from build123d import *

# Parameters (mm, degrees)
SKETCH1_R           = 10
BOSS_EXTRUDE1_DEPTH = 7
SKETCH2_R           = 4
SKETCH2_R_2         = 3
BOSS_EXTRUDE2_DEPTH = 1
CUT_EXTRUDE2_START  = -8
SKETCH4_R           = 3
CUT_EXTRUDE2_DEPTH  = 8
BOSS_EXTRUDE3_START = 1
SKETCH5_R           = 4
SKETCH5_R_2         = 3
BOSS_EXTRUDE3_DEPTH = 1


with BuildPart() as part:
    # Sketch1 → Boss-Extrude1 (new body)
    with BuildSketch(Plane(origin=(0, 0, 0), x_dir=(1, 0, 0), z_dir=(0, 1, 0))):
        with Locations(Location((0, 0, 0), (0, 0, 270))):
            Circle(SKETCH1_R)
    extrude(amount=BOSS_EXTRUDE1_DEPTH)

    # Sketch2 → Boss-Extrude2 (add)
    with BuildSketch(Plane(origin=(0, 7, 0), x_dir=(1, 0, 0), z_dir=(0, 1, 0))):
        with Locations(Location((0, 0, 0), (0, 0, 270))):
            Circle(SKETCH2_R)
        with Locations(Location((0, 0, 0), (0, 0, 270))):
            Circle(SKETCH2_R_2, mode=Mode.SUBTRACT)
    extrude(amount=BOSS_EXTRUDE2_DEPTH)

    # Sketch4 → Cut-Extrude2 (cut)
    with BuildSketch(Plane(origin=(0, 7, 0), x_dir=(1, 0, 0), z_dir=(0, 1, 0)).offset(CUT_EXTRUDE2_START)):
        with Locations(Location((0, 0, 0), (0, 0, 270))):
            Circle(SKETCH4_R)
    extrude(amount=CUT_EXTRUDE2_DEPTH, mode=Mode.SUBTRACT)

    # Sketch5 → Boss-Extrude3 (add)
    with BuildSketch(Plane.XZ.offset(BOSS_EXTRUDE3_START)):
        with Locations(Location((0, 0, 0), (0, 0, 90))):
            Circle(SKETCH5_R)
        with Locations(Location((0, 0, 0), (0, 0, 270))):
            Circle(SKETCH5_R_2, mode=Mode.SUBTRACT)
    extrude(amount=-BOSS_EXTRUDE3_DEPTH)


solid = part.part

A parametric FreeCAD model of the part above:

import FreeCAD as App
import Part
import Sketcher
Q = App.Units.Quantity

doc = App.newDocument("Part")
params = doc.addObject("Spreadsheet::Sheet", "Params")
for row, (alias, value) in enumerate([
    ("sketch1_diameter", "20 mm"),
    ("pad1_length", "7 mm"),
    ("sketch2_diameter", "8 mm"),
    ("sketch2_diameter2", "6 mm"),
    ("pad2_length", "1 mm"),
    ("sketch3_diameter", "6 mm"),
    ("pocket1_length", "8 mm"),
    ("sketch4_diameter", "8 mm"),
    ("sketch4_diameter2", "6 mm"),
    ("pad3_length", "1 mm"),
], start=1):
    params.set(f"A{row}", alias)
    params.set(f"B{row}", "=" + value)
    params.setAlias(f"B{row}", alias)

body = doc.addObject("PartDesign::Body", "Body")

sketch1 = doc.addObject("Sketcher::SketchObject", "Sketch")
body.addObject(sketch1)
sketch1.AttachmentSupport = (doc.XZ_Plane, [""])
sketch1.MapMode = "FlatFace"
sketch1.addGeometry(Part.Circle(App.Vector(0, 0, 0), App.Vector(0, 0, 1), 10), False)
sketch1.addConstraint([
    Sketcher.Constraint("Coincident", 0, 3, -1, 1),
    Sketcher.Constraint("Diameter", 0, Q("20 mm")),
])
sketch1.setExpression("Constraints[1]", "Params.sketch1_diameter")
pad1 = doc.addObject("PartDesign::Pad", "Pad")
body.addObject(pad1)
pad1.Profile = sketch1
pad1.setExpression("Length", "Params.pad1_length")
pad1.Reversed = True

sketch2 = doc.addObject("Sketcher::SketchObject", "Sketch001")
body.addObject(sketch2)
sketch2.AttachmentSupport = (doc.XZ_Plane, [""])
sketch2.MapMode = "FlatFace"
sketch2.AttachmentOffset = App.Placement(App.Vector(0, 0, -7), App.Rotation())
sketch2.addGeometry([
    Part.Circle(App.Vector(0, 0, 0), App.Vector(0, 0, 1), 4),
    Part.Circle(App.Vector(0, 0, 0), App.Vector(0, 0, 1), 3),
], False)
sketch2.addConstraint([
    Sketcher.Constraint("Coincident", 0, 3, -1, 1),
    Sketcher.Constraint("Coincident", 1, 3, -1, 1),
    Sketcher.Constraint("Diameter", 0, Q("8 mm")),
    Sketcher.Constraint("Diameter", 1, Q("6 mm")),
])
sketch2.setExpression("Constraints[2]", "Params.sketch2_diameter")
sketch2.setExpression("Constraints[3]", "Params.sketch2_diameter2")
pad2 = doc.addObject("PartDesign::Pad", "Pad001")
body.addObject(pad2)
pad2.Profile = sketch2
pad2.setExpression("Length", "Params.pad2_length")
pad2.Reversed = True

sketch3 = doc.addObject("Sketcher::SketchObject", "Sketch002")
body.addObject(sketch3)
sketch3.AttachmentSupport = (doc.XZ_Plane, [""])
sketch3.MapMode = "FlatFace"
sketch3.AttachmentOffset = App.Placement(App.Vector(0, 0, 1), App.Rotation())
sketch3.addGeometry(Part.Circle(App.Vector(0, 0, 0), App.Vector(0, 0, 1), 3), False)
sketch3.addConstraint([
    Sketcher.Constraint("Coincident", 0, 3, -1, 1),
    Sketcher.Constraint("Diameter", 0, Q("6 mm")),
])
sketch3.setExpression("Constraints[1]", "Params.sketch3_diameter")
pocket1 = doc.addObject("PartDesign::Pocket", "Pocket")
body.addObject(pocket1)
pocket1.Profile = sketch3
pocket1.setExpression("Length", "Params.pocket1_length")

sketch4 = doc.addObject("Sketcher::SketchObject", "Sketch003")
body.addObject(sketch4)
sketch4.AttachmentSupport = (doc.XZ_Plane, [""])
sketch4.MapMode = "FlatFace"
sketch4.AttachmentOffset = App.Placement(App.Vector(0, 0, 1), App.Rotation())
sketch4.addGeometry([
    Part.Circle(App.Vector(0, 0, 0), App.Vector(0, 0, 1), 4),
    Part.Circle(App.Vector(0, 0, 0), App.Vector(0, 0, 1), 3),
], False)
sketch4.addConstraint([
    Sketcher.Constraint("Coincident", 0, 3, -1, 1),
    Sketcher.Constraint("Coincident", 1, 3, -1, 1),
    Sketcher.Constraint("Diameter", 0, Q("8 mm")),
    Sketcher.Constraint("Diameter", 1, Q("6 mm")),
])
sketch4.setExpression("Constraints[2]", "Params.sketch4_diameter")
sketch4.setExpression("Constraints[3]", "Params.sketch4_diameter2")
pad3 = doc.addObject("PartDesign::Pad", "Pad002")
body.addObject(pad3)
pad3.Profile = sketch4
pad3.setExpression("Length", "Params.pad3_length")
pad3.Reversed = True

doc.recompute()
